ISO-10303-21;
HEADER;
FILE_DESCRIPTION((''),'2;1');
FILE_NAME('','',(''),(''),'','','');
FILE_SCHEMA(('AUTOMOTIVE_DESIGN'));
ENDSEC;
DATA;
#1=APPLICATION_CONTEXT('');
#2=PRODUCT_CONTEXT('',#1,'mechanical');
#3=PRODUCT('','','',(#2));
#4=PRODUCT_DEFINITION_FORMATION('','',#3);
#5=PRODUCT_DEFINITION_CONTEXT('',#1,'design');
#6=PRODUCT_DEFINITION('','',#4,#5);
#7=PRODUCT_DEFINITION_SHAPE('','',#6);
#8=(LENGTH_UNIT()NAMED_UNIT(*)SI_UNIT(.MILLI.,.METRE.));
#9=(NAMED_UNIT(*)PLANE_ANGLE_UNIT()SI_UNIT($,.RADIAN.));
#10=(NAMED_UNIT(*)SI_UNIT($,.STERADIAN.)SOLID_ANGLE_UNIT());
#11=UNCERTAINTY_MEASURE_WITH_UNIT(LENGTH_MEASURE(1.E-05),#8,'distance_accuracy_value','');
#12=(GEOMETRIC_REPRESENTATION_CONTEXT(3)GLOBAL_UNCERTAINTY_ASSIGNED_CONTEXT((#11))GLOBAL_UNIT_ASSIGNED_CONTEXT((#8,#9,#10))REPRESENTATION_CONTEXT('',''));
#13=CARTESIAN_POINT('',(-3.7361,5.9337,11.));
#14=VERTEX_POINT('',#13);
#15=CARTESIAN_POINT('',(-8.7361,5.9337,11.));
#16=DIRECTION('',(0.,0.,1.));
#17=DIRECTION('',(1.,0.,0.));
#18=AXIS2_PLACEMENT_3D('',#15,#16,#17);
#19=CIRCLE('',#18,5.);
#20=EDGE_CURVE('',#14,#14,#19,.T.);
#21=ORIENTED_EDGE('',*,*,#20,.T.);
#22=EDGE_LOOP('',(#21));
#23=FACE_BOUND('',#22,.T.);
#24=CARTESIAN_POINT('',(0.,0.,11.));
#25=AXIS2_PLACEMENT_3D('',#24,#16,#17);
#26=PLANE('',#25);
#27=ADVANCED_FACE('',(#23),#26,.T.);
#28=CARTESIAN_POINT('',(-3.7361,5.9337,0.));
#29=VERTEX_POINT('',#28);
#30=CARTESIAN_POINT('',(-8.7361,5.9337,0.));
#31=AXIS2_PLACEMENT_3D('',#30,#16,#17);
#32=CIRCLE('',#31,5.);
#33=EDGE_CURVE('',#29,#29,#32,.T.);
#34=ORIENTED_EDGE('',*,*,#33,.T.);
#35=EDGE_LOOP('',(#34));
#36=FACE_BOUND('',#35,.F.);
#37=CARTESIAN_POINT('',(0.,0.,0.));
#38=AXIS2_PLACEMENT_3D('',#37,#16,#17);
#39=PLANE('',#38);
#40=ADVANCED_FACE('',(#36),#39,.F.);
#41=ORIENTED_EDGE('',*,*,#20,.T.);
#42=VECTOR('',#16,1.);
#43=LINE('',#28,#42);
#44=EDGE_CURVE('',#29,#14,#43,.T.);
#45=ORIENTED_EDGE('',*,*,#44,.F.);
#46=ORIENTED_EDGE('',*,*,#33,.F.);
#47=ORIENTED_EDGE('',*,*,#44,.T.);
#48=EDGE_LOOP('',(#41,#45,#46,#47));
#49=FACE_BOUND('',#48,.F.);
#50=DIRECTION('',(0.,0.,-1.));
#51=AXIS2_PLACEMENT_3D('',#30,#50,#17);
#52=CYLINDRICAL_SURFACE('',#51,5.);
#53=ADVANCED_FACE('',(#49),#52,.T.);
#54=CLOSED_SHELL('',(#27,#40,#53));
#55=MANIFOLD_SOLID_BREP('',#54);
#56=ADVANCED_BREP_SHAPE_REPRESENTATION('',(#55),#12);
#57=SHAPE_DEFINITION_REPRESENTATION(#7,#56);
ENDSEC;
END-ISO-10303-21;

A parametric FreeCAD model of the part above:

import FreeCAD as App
import Part
import Sketcher
Q = App.Units.Quantity

doc = App.newDocument("Part")
params = doc.addObject("Spreadsheet::Sheet", "Params")
for row, (alias, value) in enumerate([
    ("sketch1_diameter", "10 mm"),
    ("pad1_length", "11 mm"),
], start=1):
    params.set(f"A{row}", alias)
    params.set(f"B{row}", "=" + value)
    params.setAlias(f"B{row}", alias)

body = doc.addObject("PartDesign::Body", "Body")

# Sketch on XY plane
sketch1 = doc.addObject("Sketcher::SketchObject", "Sketch")
body.addObject(sketch1)
sketch1.AttachmentSupport = (doc.XY_Plane, [""])
sketch1.MapMode = "FlatFace"
sketch1.addGeometry(Part.Circle(App.Vector(-9, 6, 0), App.Vector(0, 0, 1), 5), False)
sketch1.addConstraint(Sketcher.Constraint("Diameter", 0, Q("10 mm")))
sketch1.addConstraint(Sketcher.Constraint("DistanceX", 0, 3, -1, 1, Q("8.736 mm")))
sketch1.addConstraint(Sketcher.Constraint("DistanceY", -1, 1, 0, 3, Q("5.9337 mm")))
sketch1.setExpression("Constraints[0]", "Params.sketch1_diameter")
pad1 = doc.addObject("PartDesign::Pad", "Pad")
body.addObject(pad1)
pad1.Profile = sketch1
pad1.setExpression("Length", "Params.pad1_length")

doc.recompute()
